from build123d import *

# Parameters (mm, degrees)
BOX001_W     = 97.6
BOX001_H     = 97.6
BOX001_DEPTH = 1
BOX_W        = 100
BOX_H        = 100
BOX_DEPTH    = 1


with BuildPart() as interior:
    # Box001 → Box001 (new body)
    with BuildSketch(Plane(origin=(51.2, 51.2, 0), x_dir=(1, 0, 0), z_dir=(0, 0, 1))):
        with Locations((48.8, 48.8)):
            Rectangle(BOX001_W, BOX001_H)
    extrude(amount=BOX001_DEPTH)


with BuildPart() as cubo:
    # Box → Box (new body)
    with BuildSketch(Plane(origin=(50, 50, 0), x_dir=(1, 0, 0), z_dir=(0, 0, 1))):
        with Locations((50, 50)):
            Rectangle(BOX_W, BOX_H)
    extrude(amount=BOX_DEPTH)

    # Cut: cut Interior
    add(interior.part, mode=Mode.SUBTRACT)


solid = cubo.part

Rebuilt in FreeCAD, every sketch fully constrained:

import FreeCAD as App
import Part
import Sketcher

V = App.Vector
Q = App.Units.Quantity


def add_polygon(sketch, points):
    """Adds a closed chain of lines whose ends are joined by coincident constraints."""
    first, n = sketch.GeometryCount, len(points)
    for a, b in zip(points, points[1:] + points[:1]):
        sketch.addGeometry(Part.LineSegment(App.Vector(*a, 0), App.Vector(*b, 0)), False)
    for i in range(n):
        sketch.addConstraint(Sketcher.Constraint("Coincident", first + i, 2, first + (i + 1) % n, 1))

doc = App.newDocument("Part")
body = doc.addObject("PartDesign::Body", "Body")

sketch1 = body.newObject("Sketcher::SketchObject", "Sketch")
sketch1.AttachmentSupport = (doc.getObject("XY_Plane"), [""])
sketch1.MapMode = "FlatFace"
add_polygon(sketch1, [(51, 149), (51, 51), (149, 51), (149, 149)])
sketch1.addConstraint([
    Sketcher.Constraint("Vertical", 0),
    Sketcher.Constraint("Horizontal", 1),
    Sketcher.Constraint("Vertical", 2),
    Sketcher.Constraint("Horizontal", 3),
    Sketcher.Constraint("Equal", 3, 0),
    Sketcher.Constraint("DistanceX", 1, 1, 1, 2, Q("97.6 mm")),
    Sketcher.Constraint("DistanceX", -1, 1, 0, 2, Q("51.2 mm")),
    Sketcher.Constraint("DistanceY", -1, 1, 0, 2, Q("51.2 mm")),
])
pad1 = body.newObject("PartDesign::Pad", "Pad")
pad1.Profile = sketch1
pad1.Length = 1
body2 = doc.addObject("PartDesign::Body", "Body001")

sketch2 = body2.newObject("Sketcher::SketchObject", "Sketch001")
sketch2.AttachmentSupport = (doc.getObject("XY_Plane001"), [""])
sketch2.MapMode = "FlatFace"
add_polygon(sketch2, [(50, 150), (50, 50), (150, 50), (150, 150)])
sketch2.addConstraint([
    Sketcher.Constraint("Vertical", 0),
    Sketcher.Constraint("Horizontal", 1),
    Sketcher.Constraint("Vertical", 2),
    Sketcher.Constraint("Horizontal", 3),
    Sketcher.Constraint("Equal", 3, 0),
    Sketcher.Constraint("DistanceX", 1, 1, 1, 2, Q("100 mm")),
    Sketcher.Constraint("DistanceX", -1, 1, 0, 2, Q("50 mm")),
    Sketcher.Constraint("DistanceY", -1, 1, 0, 2, Q("50 mm")),
])
pad2 = body2.newObject("PartDesign::Pad", "Pad001")
pad2.Profile = sketch2
pad2.Length = 1
doc.recompute()

boolean = body2.newObject("PartDesign::Boolean", "Boolean")
boolean.Type = "Cut"
boolean.addObjects([body])

doc.recompute()
